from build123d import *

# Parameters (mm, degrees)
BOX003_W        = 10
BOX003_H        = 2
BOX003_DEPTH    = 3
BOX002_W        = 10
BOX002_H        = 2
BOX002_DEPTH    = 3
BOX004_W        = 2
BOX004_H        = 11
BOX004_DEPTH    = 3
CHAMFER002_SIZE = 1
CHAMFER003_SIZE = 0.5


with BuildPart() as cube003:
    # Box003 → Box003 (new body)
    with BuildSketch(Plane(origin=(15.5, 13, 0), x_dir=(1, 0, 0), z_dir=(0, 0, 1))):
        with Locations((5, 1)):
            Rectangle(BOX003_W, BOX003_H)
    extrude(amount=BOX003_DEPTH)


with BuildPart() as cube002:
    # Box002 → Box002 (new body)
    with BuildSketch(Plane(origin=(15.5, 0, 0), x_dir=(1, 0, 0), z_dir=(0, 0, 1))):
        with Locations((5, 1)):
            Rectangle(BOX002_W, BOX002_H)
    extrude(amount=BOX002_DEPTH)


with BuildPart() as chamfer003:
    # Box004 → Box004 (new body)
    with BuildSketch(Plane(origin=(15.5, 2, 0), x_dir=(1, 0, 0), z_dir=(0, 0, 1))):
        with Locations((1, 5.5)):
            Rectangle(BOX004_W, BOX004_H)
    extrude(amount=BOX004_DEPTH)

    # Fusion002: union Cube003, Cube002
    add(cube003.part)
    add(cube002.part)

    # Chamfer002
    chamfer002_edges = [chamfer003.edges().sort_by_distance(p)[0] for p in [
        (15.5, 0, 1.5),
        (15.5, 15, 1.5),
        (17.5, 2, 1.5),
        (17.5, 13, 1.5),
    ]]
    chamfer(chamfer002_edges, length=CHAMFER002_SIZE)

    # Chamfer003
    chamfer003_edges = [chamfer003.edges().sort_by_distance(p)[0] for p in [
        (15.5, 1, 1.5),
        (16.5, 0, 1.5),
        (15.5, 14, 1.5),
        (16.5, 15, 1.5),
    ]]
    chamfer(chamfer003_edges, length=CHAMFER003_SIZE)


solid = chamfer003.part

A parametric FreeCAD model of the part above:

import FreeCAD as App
import Part
import Sketcher

V = App.Vector
Q = App.Units.Quantity


def edges_at(feature, points):
    """Names of the edges that pass closest to the given points."""
    edges = feature.Shape.Edges
    near = lambda p: min(range(len(edges)), key=lambda i: edges[i].distToShape(Part.Vertex(*p))[0])
    return sorted({f"Edge{near(p) + 1}" for p in points})

doc = App.newDocument("Part")
body = doc.addObject("PartDesign::Body", "Body")

# Sketch on XY plane
sketch1 = doc.addObject("Sketcher::SketchObject", "Sketch")
body.addObject(sketch1)
sketch1.AttachmentSupport = (doc.XY_Plane, [""])
sketch1.MapMode = "FlatFace"
sketch1.addGeometry([
    Part.LineSegment(V(15.5, 15, 0), V(15.5, 13, 0)),
    Part.LineSegment(V(15.5, 13, 0), V(25.5, 13, 0)),
    Part.LineSegment(V(25.5, 13, 0), V(25.5, 15, 0)),
    Part.LineSegment(V(25.5, 15, 0), V(15.5, 15, 0)),
], False)
sketch1.addConstraint([
    Sketcher.Constraint("Coincident", 0, 2, 1, 1),
    Sketcher.Constraint("Coincident", 1, 2, 2, 1),
    Sketcher.Constraint("Coincident", 2, 2, 3, 1),
    Sketcher.Constraint("Coincident", 3, 2, 0, 1),
    Sketcher.Constraint("Vertical", 0),
    Sketcher.Constraint("Horizontal", 1),
    Sketcher.Constraint("Vertical", 2),
    Sketcher.Constraint("Horizontal", 3),
    Sketcher.Constraint("DistanceX", 1, 1, 1, 2, Q("10 mm")),
    Sketcher.Constraint("DistanceY", 0, 2, 0, 1, Q("2 mm")),
    Sketcher.Constraint("DistanceY", -1, 1, 0, 2, Q("13 mm")),
    Sketcher.Constraint("DistanceX", -1, 1, 0, 2, Q("15.5 mm")),
])
pad1 = doc.addObject("PartDesign::Pad", "Pad")
body.addObject(pad1)
pad1.Profile = sketch1
pad1.Length = 3
body2 = doc.addObject("PartDesign::Body", "Body001")

# Sketch on XY plane
sketch2 = doc.addObject("Sketcher::SketchObject", "Sketch001")
body2.addObject(sketch2)
sketch2.AttachmentSupport = (doc.getObject("XY_Plane001"), [""])
sketch2.MapMode = "FlatFace"
sketch2.addGeometry([
    Part.LineSegment(V(15.5, 2, 0), V(15.5, 0, 0)),
    Part.LineSegment(V(15.5, 0, 0), V(25.5, 0, 0)),
    Part.LineSegment(V(25.5, 0, 0), V(25.5, 2, 0)),
    Part.LineSegment(V(25.5, 2, 0), V(15.5, 2, 0)),
], False)
sketch2.addConstraint([
    Sketcher.Constraint("Coincident", 0, 2, 1, 1),
    Sketcher.Constraint("Coincident", 1, 2, 2, 1),
    Sketcher.Constraint("Coincident", 2, 2, 3, 1),
    Sketcher.Constraint("Coincident", 3, 2, 0, 1),
    Sketcher.Constraint("Vertical", 0),
    Sketcher.Constraint("Horizontal", 1),
    Sketcher.Constraint("Vertical", 2),
    Sketcher.Constraint("Horizontal", 3),
    Sketcher.Constraint("PointOnObject", 0, 2, -1),
    Sketcher.Constraint("DistanceX", 1, 1, 1, 2, Q("10 mm")),
    Sketcher.Constraint("DistanceY", 0, 2, 0, 1, Q("2 mm")),
    Sketcher.Constraint("DistanceX", -1, 1, 0, 2, Q("15.5 mm")),
])
pad2 = doc.addObject("PartDesign::Pad", "Pad001")
body2.addObject(pad2)
pad2.Profile = sketch2
pad2.Length = 3
body3 = doc.addObject("PartDesign::Body", "Body002")

# Sketch on XY plane
sketch3 = doc.addObject("Sketcher::SketchObject", "Sketch002")
body3.addObject(sketch3)
sketch3.AttachmentSupport = (doc.getObject("XY_Plane002"), [""])
sketch3.MapMode = "FlatFace"
sketch3.addGeometry([
    Part.LineSegment(V(15.5, 13, 0), V(15.5, 2, 0)),
    Part.LineSegment(V(15.5, 2, 0), V(17.5, 2, 0)),
    Part.LineSegment(V(17.5, 2, 0), V(17.5, 13, 0)),
    Part.LineSegment(V(17.5, 13, 0), V(15.5, 13, 0)),
], False)
sketch3.addConstraint([
    Sketcher.Constraint("Coincident", 0, 2, 1, 1),
    Sketcher.Constraint("Coincident", 1, 2, 2, 1),
    Sketcher.Constraint("Coincident", 2, 2, 3, 1),
    Sketcher.Constraint("Coincident", 3, 2, 0, 1),
    Sketcher.Constraint("Vertical", 0),
    Sketcher.Constraint("Horizontal", 1),
    Sketcher.Constraint("Vertical", 2),
    Sketcher.Constraint("Horizontal", 3),
    Sketcher.Constraint("DistanceX", 1, 1, 1, 2, Q("2 mm")),
    Sketcher.Constraint("DistanceY", 0, 2, 0, 1, Q("11 mm")),
    Sketcher.Constraint("DistanceY", -1, 1, 0, 2, Q("2 mm")),
    Sketcher.Constraint("DistanceX", -1, 1, 0, 2, Q("15.5 mm")),
])
pad3 = doc.addObject("PartDesign::Pad", "Pad002")
body3.addObject(pad3)
pad3.Profile = sketch3
pad3.Length = 3
doc.recompute()

boolean = doc.addObject("PartDesign::Boolean", "Boolean")
body3.addObject(boolean)
boolean.Type = "Fuse"
boolean.addObjects([body])
doc.recompute()

boolean2 = doc.addObject("PartDesign::Boolean", "Boolean001")
body3.addObject(boolean2)
boolean2.Type = "Fuse"
boolean2.addObjects([body2])
doc.recompute()

chamfer = doc.addObject("PartDesign::Chamfer", "Chamfer")
body3.addObject(chamfer)
chamfer.Base = (boolean2, edges_at(boolean2, [
    (15.5, 0, 1.5),
    (15.5, 15, 1.5),
    (17.5, 2, 1.5),
    (17.5, 13, 1.5),
]))
chamfer.Size = 1
doc.recompute()

chamfer2 = doc.addObject("PartDesign::Chamfer", "Chamfer001")
body3.addObject(chamfer2)
chamfer2.Base = (chamfer, edges_at(chamfer, [
    (15.5, 1, 1.5),
    (16.5, 0, 1.5),
    (15.5, 14, 1.5),
    (16.5, 15, 1.5),
]))
chamfer2.Size = 0.5

doc.recompute()
